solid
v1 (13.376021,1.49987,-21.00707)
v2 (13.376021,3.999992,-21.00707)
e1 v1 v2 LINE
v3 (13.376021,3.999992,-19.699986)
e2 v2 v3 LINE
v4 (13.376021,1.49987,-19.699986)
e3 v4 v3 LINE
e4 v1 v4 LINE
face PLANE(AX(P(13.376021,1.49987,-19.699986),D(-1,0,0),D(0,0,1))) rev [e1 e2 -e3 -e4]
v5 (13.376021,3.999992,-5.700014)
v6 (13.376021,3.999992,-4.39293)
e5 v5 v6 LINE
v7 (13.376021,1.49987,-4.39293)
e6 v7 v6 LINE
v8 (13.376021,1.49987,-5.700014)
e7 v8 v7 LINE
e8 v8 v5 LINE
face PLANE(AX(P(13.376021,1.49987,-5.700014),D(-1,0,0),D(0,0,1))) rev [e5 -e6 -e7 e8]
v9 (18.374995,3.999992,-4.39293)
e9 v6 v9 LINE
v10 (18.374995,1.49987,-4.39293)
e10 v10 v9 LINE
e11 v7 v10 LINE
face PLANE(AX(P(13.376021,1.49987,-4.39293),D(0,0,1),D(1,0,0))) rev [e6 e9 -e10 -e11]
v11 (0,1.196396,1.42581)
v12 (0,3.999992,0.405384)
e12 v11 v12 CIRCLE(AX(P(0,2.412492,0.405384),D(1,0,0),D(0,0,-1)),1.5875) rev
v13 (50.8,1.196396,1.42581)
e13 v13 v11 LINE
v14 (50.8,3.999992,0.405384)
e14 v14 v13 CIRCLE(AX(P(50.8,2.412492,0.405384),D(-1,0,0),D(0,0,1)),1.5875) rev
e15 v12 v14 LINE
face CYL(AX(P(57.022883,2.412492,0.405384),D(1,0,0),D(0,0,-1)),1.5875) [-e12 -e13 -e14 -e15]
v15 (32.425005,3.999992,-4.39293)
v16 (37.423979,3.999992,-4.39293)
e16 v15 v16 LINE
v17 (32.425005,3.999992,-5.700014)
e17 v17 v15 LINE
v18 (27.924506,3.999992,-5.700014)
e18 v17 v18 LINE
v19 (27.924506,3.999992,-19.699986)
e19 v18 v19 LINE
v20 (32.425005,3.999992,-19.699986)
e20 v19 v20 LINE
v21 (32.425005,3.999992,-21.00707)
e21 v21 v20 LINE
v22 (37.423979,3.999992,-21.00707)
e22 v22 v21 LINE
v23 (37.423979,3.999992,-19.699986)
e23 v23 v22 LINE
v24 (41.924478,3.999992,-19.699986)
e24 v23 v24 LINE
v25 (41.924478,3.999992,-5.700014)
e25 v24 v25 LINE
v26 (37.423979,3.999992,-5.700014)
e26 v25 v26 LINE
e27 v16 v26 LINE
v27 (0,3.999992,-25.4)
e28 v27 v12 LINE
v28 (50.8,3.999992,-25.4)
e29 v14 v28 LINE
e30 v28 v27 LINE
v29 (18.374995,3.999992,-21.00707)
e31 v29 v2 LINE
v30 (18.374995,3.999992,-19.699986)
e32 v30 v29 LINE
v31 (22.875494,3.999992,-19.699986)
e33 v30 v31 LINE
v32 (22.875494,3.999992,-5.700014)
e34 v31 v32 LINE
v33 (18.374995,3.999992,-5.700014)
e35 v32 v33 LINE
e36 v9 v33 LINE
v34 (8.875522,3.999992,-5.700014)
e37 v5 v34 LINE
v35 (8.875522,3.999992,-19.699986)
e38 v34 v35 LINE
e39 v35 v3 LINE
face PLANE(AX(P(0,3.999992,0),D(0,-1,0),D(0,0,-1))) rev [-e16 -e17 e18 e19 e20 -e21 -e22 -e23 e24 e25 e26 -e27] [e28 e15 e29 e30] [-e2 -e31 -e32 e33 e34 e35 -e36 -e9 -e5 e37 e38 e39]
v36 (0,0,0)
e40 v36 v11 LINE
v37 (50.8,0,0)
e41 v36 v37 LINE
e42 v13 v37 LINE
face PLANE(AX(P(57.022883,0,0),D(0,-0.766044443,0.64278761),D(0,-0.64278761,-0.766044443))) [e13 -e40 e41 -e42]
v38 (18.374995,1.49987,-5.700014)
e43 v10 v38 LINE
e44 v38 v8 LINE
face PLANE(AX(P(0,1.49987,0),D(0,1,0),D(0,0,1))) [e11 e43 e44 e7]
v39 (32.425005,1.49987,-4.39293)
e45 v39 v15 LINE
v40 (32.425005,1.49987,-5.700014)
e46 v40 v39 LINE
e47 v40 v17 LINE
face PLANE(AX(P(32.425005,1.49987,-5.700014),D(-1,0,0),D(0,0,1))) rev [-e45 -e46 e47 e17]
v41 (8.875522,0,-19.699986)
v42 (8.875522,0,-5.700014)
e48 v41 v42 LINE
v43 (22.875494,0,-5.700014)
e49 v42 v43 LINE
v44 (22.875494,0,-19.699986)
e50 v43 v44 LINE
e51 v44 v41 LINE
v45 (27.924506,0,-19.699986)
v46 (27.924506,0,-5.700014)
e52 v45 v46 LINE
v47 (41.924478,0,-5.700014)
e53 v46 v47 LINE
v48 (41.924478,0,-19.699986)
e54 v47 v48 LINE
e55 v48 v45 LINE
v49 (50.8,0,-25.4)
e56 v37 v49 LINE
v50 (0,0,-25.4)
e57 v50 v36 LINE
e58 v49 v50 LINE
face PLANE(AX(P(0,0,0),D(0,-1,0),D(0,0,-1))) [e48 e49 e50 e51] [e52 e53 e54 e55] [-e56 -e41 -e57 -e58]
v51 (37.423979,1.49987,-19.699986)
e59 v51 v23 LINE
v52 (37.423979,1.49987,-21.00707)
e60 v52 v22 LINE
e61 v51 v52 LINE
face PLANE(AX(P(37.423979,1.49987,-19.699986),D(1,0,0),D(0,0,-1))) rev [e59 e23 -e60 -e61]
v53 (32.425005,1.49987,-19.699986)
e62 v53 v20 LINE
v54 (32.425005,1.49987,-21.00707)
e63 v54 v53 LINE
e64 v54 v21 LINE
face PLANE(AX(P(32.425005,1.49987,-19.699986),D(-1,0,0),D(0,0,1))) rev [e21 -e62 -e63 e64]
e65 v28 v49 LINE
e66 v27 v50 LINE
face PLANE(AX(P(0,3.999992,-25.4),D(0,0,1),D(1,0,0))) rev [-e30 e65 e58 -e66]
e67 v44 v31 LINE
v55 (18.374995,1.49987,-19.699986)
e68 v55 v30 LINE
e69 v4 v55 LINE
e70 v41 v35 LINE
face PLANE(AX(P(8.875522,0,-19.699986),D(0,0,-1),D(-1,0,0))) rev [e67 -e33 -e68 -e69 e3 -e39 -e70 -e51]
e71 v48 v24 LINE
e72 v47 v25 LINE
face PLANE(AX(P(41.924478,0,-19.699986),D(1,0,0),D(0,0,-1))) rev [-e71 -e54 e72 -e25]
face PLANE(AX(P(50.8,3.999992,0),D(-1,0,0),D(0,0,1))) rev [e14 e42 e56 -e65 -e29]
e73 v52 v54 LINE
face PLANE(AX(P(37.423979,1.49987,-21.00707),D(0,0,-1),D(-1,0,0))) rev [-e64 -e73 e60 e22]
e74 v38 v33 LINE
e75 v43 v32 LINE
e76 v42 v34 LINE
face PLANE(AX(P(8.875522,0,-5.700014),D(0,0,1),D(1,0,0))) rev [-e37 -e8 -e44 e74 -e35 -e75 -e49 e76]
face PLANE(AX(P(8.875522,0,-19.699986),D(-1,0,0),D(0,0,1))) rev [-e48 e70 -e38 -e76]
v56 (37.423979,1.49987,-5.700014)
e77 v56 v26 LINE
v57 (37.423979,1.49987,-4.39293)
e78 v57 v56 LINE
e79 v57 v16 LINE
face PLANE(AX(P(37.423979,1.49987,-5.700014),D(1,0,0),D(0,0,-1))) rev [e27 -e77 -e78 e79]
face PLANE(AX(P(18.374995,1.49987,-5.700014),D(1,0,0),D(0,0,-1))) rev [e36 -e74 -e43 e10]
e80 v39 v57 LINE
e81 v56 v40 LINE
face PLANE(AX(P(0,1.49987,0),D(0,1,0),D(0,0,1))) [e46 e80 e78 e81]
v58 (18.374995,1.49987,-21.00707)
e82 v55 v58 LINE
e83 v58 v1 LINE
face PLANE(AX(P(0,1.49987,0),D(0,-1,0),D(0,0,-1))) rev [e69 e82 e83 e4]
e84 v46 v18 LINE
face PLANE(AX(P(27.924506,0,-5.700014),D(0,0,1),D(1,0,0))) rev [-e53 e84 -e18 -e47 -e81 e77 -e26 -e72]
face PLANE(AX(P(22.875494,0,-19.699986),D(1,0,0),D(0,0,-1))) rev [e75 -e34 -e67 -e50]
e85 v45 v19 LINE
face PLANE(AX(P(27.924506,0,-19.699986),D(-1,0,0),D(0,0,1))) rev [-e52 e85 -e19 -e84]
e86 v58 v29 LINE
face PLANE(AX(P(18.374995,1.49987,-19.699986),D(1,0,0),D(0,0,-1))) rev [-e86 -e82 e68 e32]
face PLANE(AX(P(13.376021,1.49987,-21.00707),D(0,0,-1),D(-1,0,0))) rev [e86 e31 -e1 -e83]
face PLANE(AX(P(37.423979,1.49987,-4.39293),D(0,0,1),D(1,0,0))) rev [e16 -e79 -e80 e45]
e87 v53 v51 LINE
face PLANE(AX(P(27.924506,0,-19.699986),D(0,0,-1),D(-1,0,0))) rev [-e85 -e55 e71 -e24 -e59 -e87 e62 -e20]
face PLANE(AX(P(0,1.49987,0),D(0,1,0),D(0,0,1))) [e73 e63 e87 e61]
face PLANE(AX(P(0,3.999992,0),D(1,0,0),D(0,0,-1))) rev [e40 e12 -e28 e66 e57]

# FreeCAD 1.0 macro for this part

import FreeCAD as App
import Part
import Sketcher
from FreeCAD import Vector
Q = App.Units.Quantity


def edges_at(feature, points):
    """Names of the edges that pass closest to the given points."""
    edges = feature.Shape.Edges
    near = lambda p: min(range(len(edges)), key=lambda i: edges[i].distToShape(Part.Vertex(*p))[0])
    return sorted({f"Edge{near(p) + 1}" for p in points})

doc = App.newDocument("Part")
body = doc.addObject("PartDesign::Body", "Body")

sketch1 = doc.addObject("Sketcher::SketchObject", "Sketch")
body.addObject(sketch1)
sketch1.AttachmentSupport = (doc.XZ_Plane, [""])
sketch1.MapMode = "FlatFace"
sketch1.addGeometry(Part.LineSegment(Vector(0, -25, 0), Vector(0, 0, 0)), False)
sketch1.addGeometry(Part.LineSegment(Vector(0, 0, 0), Vector(51, 0, 0)), False)
sketch1.addGeometry(Part.LineSegment(Vector(51, 0, 0), Vector(51, -25, 0)), False)
sketch1.addGeometry(Part.LineSegment(Vector(51, -25, 0), Vector(0, -25, 0)), False)
sketch1.addConstraint(Sketcher.Constraint("Coincident", 0, 2, 1, 1))
sketch1.addConstraint(Sketcher.Constraint("Coincident", 1, 2, 2, 1))
sketch1.addConstraint(Sketcher.Constraint("Coincident", 2, 2, 3, 1))
sketch1.addConstraint(Sketcher.Constraint("Coincident", 3, 2, 0, 1))
sketch1.addConstraint(Sketcher.Constraint("Vertical", 0))
sketch1.addConstraint(Sketcher.Constraint("Horizontal", 1))
sketch1.addConstraint(Sketcher.Constraint("Vertical", 2))
sketch1.addConstraint(Sketcher.Constraint("Horizontal", 3))
sketch1.addConstraint(Sketcher.Constraint("Coincident", 0, 2, -1, 1))
sketch1.addConstraint(Sketcher.Constraint("DistanceX", 1, 1, 1, 2, Q("2 in")))
sketch1.addConstraint(Sketcher.Constraint("DistanceY", 0, 1, 0, 2, Q("1 in")))
pad1 = doc.addObject("PartDesign::Pad", "Pad")
body.addObject(pad1)
pad1.Profile = sketch1
pad1.Length = 3.999992
pad1.Reversed = True

sketch2 = doc.addObject("Sketcher::SketchObject", "Sketch001")
body.addObject(sketch2)
sketch2.AttachmentSupport = (doc.XZ_Plane, [""])
sketch2.MapMode = "FlatFace"
sketch2.AttachmentOffset = App.Placement(Vector(0, 0, -3.999992), App.Rotation())
sketch2.addGeometry(Part.LineSegment(Vector(9, -20, 0), Vector(9, -6, 0)), False)
sketch2.addGeometry(Part.LineSegment(Vector(9, -6, 0), Vector(23, -6, 0)), False)
sketch2.addGeometry(Part.LineSegment(Vector(23, -6, 0), Vector(23, -20, 0)), False)
sketch2.addGeometry(Part.LineSegment(Vector(23, -20, 0), Vector(9, -20, 0)), False)
sketch2.addGeometry(Part.LineSegment(Vector(28, -20, 0), Vector(28, -6, 0)), False)
sketch2.addGeometry(Part.LineSegment(Vector(28, -6, 0), Vector(42, -6, 0)), False)
sketch2.addGeometry(Part.LineSegment(Vector(42, -6, 0), Vector(42, -20, 0)), False)
sketch2.addGeometry(Part.LineSegment(Vector(42, -20, 0), Vector(28, -20, 0)), False)
sketch2.addConstraint(Sketcher.Constraint("Coincident", 0, 2, 1, 1))
sketch2.addConstraint(Sketcher.Constraint("Coincident", 1, 2, 2, 1))
sketch2.addConstraint(Sketcher.Constraint("Coincident", 2, 2, 3, 1))
sketch2.addConstraint(Sketcher.Constraint("Coincident", 3, 2, 0, 1))
sketch2.addConstraint(Sketcher.Constraint("Coincident", 4, 2, 5, 1))
sketch2.addConstraint(Sketcher.Constraint("Coincident", 5, 2, 6, 1))
sketch2.addConstraint(Sketcher.Constraint("Coincident", 6, 2, 7, 1))
sketch2.addConstraint(Sketcher.Constraint("Coincident", 7, 2, 4, 1))
sketch2.addConstraint(Sketcher.Constraint("Vertical", 0))
sketch2.addConstraint(Sketcher.Constraint("Horizontal", 1))
sketch2.addConstraint(Sketcher.Constraint("Vertical", 2))
sketch2.addConstraint(Sketcher.Constraint("Horizontal", 3))
sketch2.addConstraint(Sketcher.Constraint("Vertical", 4))
sketch2.addConstraint(Sketcher.Constraint("Horizontal", 5))
sketch2.addConstraint(Sketcher.Constraint("Vertical", 6))
sketch2.addConstraint(Sketcher.Constraint("Horizontal", 7))
sketch2.addConstraint(Sketcher.Constraint("Horizontal", 1, 2, 4, 2))
sketch2.addConstraint(Sketcher.Constraint("Horizontal", 3, 2, 6, 2))
sketch2.addConstraint(Sketcher.Constraint("Equal", 3, 5))
sketch2.addConstraint(Sketcher.Constraint("Equal", 7, 0))
sketch2.addConstraint(Sketcher.Constraint("DistanceX", 1, 1, 1, 2, 13.999972))
sketch2.addConstraint(Sketcher.Constraint("DistanceX", -1, 1, 0, 2, 8.875522))
sketch2.addConstraint(Sketcher.Constraint("DistanceY", 0, 2, -1, 1, 5.700014))
sketch2.addConstraint(Sketcher.Constraint("DistanceX", -1, 1, 4, 2, 27.924506))
pocket1 = doc.addObject("PartDesign::Pocket", "Pocket")
body.addObject(pocket1)
pocket1.Profile = sketch2
pocket1.Type = "ThroughAll"
pocket1.Midplane = True

sketch3 = doc.addObject("Sketcher::SketchObject", "Sketch002")
body.addObject(sketch3)
sketch3.AttachmentSupport = (doc.XZ_Plane, [""])
sketch3.MapMode = "FlatFace"
sketch3.AttachmentOffset = App.Placement(Vector(0, 0, -3.999992), App.Rotation())
sketch3.addGeometry(Part.LineSegment(Vector(13.4, -21, 0), Vector(13.4, -19.7, 0)), False)
sketch3.addGeometry(Part.LineSegment(Vector(13.4, -19.7, 0), Vector(18.4, -19.7, 0)), False)
sketch3.addGeometry(Part.LineSegment(Vector(18.4, -19.7, 0), Vector(18.4, -21, 0)), False)
sketch3.addGeometry(Part.LineSegment(Vector(18.4, -21, 0), Vector(13.4, -21, 0)), False)
sketch3.addGeometry(Part.LineSegment(Vector(32.4, -21, 0), Vector(32.4, -19.7, 0)), False)
sketch3.addGeometry(Part.LineSegment(Vector(32.4, -19.7, 0), Vector(37.4, -19.7, 0)), False)
sketch3.addGeometry(Part.LineSegment(Vector(37.4, -19.7, 0), Vector(37.4, -21, 0)), False)
sketch3.addGeometry(Part.LineSegment(Vector(37.4, -21, 0), Vector(32.4, -21, 0)), False)
sketch3.addGeometry(Part.LineSegment(Vector(32.4, -5.7, 0), Vector(32.4, -4.4, 0)), False)
sketch3.addGeometry(Part.LineSegment(Vector(32.4, -4.4, 0), Vector(37.4, -4.4, 0)), False)
sketch3.addGeometry(Part.LineSegment(Vector(37.4, -4.4, 0), Vector(37.4, -5.7, 0)), False)
sketch3.addGeometry(Part.LineSegment(Vector(37.4, -5.7, 0), Vector(32.4, -5.7, 0)), False)
sketch3.addGeometry(Part.LineSegment(Vector(13.4, -5.7, 0), Vector(13.4, -4.4, 0)), False)
sketch3.addGeometry(Part.LineSegment(Vector(13.4, -4.4, 0), Vector(18.4, -4.4, 0)), False)
sketch3.addGeometry(Part.LineSegment(Vector(18.4, -4.4, 0), Vector(18.4, -5.7, 0)), False)
sketch3.addGeometry(Part.LineSegment(Vector(18.4, -5.7, 0), Vector(13.4, -5.7, 0)), False)
sketch3.addConstraint(Sketcher.Constraint("Coincident", 0, 2, 1, 1))
sketch3.addConstraint(Sketcher.Constraint("Coincident", 1, 2, 2, 1))
sketch3.addConstraint(Sketcher.Constraint("Coincident", 2, 2, 3, 1))
sketch3.addConstraint(Sketcher.Constraint("Coincident", 3, 2, 0, 1))
sketch3.addConstraint(Sketcher.Constraint("Coincident", 4, 2, 5, 1))
sketch3.addConstraint(Sketcher.Constraint("Coincident", 5, 2, 6, 1))
sketch3.addConstraint(Sketcher.Constraint("Coincident", 6, 2, 7, 1))
sketch3.addConstraint(Sketcher.Constraint("Coincident", 7, 2, 4, 1))
sketch3.addConstraint(Sketcher.Constraint("Coincident", 8, 2, 9, 1))
sketch3.addConstraint(Sketcher.Constraint("Coincident", 9, 2, 10, 1))
sketch3.addConstraint(Sketcher.Constraint("Coincident", 10, 2, 11, 1))
sketch3.addConstraint(Sketcher.Constraint("Coincident", 11, 2, 8, 1))
sketch3.addConstraint(Sketcher.Constraint("Coincident", 12, 2, 13, 1))
sketch3.addConstraint(Sketcher.Constraint("Coincident", 13, 2, 14, 1))
sketch3.addConstraint(Sketcher.Constraint("Coincident", 14, 2, 15, 1))
sketch3.addConstraint(Sketcher.Constraint("Coincident", 15, 2, 12, 1))
sketch3.addConstraint(Sketcher.Constraint("Vertical", 0))
sketch3.addConstraint(Sketcher.Constraint("Horizontal", 1))
sketch3.addConstraint(Sketcher.Constraint("Vertical", 2))
sketch3.addConstraint(Sketcher.Constraint("Horizontal", 3))
sketch3.addConstraint(Sketcher.Constraint("Vertical", 4))
sketch3.addConstraint(Sketcher.Constraint("Horizontal", 5))
sketch3.addConstraint(Sketcher.Constraint("Vertical", 6))
sketch3.addConstraint(Sketcher.Constraint("Horizontal", 7))
sketch3.addConstraint(Sketcher.Constraint("Vertical", 8))
sketch3.addConstraint(Sketcher.Constraint("Horizontal", 9))
sketch3.addConstraint(Sketcher.Constraint("Vertical", 10))
sketch3.addConstraint(Sketcher.Constraint("Horizontal", 11))
sketch3.addConstraint(Sketcher.Constraint("Vertical", 12))
sketch3.addConstraint(Sketcher.Constraint("Horizontal", 13))
sketch3.addConstraint(Sketcher.Constraint("Vertical", 14))
sketch3.addConstraint(Sketcher.Constraint("Horizontal", 15))
sketch3.addConstraint(Sketcher.Constraint("Horizontal", 1, 2, 4, 2))
sketch3.addConstraint(Sketcher.Constraint("Horizontal", 3, 2, 6, 2))
sketch3.addConstraint(Sketcher.Constraint("Horizontal", 9, 2, 12, 2))
sketch3.addConstraint(Sketcher.Constraint("Horizontal", 11, 2, 14, 2))
sketch3.addConstraint(Sketcher.Constraint("Vertical", 7, 2, 8, 2))
sketch3.addConstraint(Sketcher.Constraint("Vertical", 6, 2, 9, 2))
sketch3.addConstraint(Sketcher.Constraint("Vertical", 3, 2, 12, 2))
sketch3.addConstraint(Sketcher.Constraint("Vertical", 2, 2, 13, 2))
sketch3.addConstraint(Sketcher.Constraint("Equal", 3, 5))
sketch3.addConstraint(Sketcher.Constraint("Equal", 6, 8))
sketch3.addConstraint(Sketcher.Constraint("DistanceY", 7, 2, 8, 2, Q("0.6541 in")))
sketch3.addConstraint(Sketcher.Constraint("DistanceX", 1, 1, 1, 2, 4.998974))
sketch3.addConstraint(Sketcher.Constraint("DistanceY", 0, 1, 0, 2, 1.307084))
sketch3.addConstraint(Sketcher.Constraint("DistanceX", -1, 1, 0, 2, 13.376021))
sketch3.addConstraint(Sketcher.Constraint("DistanceY", 2, 2, -1, 1, 21.00707))
sketch3.addConstraint(Sketcher.Constraint("DistanceX", -1, 1, 5, 2, 37.423979))
pocket2 = doc.addObject("PartDesign::Pocket", "Pocket001")
body.addObject(pocket2)
pocket2.Profile = sketch3
pocket2.Length = 2.500122
pocket2.Reversed = True

sketch4 = doc.addObject("Sketcher::SketchObject", "Sketch003")
body.addObject(sketch4)
sketch4.AttachmentSupport = (doc.YZ_Plane, [""])
sketch4.MapMode = "FlatFace"
sketch4.addGeometry(Part.LineSegment(Vector(0, 0, 0), Vector(4, 4.8, 0)), False)
sketch4.addGeometry(Part.LineSegment(Vector(4, 4.8, 0), Vector(4, 0, 0)), False)
sketch4.addGeometry(Part.LineSegment(Vector(4, 0, 0), Vector(0, 0, 0)), False)
sketch4.addConstraint(Sketcher.Constraint("Coincident", 0, 2, 1, 1))
sketch4.addConstraint(Sketcher.Constraint("Coincident", 1, 2, 2, 1))
sketch4.addConstraint(Sketcher.Constraint("Coincident", 2, 2, 0, 1))
sketch4.addConstraint(Sketcher.Constraint("Vertical", 1))
sketch4.addConstraint(Sketcher.Constraint("Horizontal", 2))
sketch4.addConstraint(Sketcher.Constraint("Coincident", 2, 2, -1, 1))
sketch4.addConstraint(Sketcher.Constraint("Angle", 0, Q("50 deg")))
sketch4.addConstraint(Sketcher.Constraint("DistanceX", 2, 2, 2, 1, 3.999992))
pad2 = doc.addObject("PartDesign::Pad", "Pad001")
body.addObject(pad2)
pad2.Profile = sketch4
pad2.Length = Q("2 in")
doc.recompute()

fillet = doc.addObject("PartDesign::Fillet", "Fillet")
body.addObject(fillet)
fillet.Base = (pad2, edges_at(pad2, [(25.4, 4, 4.767)]))
fillet.Radius = Q("0.0625 in")

doc.recompute()
